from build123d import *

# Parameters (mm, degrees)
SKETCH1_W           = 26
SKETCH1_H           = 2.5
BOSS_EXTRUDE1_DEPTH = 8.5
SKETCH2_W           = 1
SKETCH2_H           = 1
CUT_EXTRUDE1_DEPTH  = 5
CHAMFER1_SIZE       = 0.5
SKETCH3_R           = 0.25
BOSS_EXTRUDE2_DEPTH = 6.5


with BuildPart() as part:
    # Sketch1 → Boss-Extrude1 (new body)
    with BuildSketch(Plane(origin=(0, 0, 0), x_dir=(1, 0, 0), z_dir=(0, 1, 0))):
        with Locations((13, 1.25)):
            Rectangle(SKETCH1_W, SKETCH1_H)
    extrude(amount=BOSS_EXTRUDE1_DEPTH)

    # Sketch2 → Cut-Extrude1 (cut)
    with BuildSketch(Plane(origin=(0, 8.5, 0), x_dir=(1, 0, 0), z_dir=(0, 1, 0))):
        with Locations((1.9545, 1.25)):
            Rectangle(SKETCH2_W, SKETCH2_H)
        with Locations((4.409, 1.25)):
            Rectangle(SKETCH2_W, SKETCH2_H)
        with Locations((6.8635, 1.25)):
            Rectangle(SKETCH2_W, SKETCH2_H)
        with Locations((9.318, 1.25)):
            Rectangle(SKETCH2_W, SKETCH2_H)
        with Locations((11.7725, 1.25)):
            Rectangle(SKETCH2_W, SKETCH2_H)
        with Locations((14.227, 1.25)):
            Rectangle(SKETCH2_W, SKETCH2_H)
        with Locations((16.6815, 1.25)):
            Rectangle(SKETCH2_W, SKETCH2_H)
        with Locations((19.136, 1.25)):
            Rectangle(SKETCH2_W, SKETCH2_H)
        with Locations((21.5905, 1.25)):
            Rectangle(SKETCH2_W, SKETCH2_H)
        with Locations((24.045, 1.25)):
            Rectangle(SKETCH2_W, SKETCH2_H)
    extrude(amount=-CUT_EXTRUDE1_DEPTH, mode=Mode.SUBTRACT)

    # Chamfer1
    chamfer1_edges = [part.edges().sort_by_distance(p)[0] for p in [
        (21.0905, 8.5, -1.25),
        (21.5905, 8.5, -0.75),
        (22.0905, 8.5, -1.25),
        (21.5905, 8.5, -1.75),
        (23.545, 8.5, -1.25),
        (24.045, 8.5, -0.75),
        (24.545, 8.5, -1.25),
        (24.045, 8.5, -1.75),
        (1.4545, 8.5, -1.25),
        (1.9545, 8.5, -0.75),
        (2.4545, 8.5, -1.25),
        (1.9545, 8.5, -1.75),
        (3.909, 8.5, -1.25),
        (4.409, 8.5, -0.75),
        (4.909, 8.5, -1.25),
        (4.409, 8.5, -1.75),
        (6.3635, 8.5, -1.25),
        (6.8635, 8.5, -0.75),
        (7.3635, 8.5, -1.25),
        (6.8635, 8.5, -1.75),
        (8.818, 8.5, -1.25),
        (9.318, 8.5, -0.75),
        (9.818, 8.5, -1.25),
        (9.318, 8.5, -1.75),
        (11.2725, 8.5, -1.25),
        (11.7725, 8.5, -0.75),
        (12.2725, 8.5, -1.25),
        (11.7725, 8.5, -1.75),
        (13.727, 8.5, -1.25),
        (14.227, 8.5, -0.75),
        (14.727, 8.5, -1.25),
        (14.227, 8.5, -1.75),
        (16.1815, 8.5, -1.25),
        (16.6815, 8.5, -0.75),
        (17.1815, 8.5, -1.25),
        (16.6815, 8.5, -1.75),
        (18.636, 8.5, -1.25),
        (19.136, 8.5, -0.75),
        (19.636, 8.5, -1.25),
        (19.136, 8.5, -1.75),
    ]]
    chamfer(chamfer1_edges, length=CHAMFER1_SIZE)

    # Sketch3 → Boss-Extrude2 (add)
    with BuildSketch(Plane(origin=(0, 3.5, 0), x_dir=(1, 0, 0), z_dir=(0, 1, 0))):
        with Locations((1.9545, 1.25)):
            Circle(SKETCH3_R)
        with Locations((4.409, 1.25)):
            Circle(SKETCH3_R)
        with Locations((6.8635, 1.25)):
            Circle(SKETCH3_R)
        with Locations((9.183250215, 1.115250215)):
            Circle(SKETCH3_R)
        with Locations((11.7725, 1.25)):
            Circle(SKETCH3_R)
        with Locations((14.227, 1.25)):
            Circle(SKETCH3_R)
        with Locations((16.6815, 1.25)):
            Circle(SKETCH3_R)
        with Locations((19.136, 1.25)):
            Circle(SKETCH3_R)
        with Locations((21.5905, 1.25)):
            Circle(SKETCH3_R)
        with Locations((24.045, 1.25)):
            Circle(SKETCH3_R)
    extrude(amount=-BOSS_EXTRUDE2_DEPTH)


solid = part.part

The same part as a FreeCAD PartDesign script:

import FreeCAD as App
import Part
import Sketcher
from FreeCAD import Vector
Q = App.Units.Quantity


def edges_at(feature, points):
    """Names of the edges that pass closest to the given points."""
    edges = feature.Shape.Edges
    near = lambda p: min(range(len(edges)), key=lambda i: edges[i].distToShape(Part.Vertex(*p))[0])
    return sorted({f"Edge{near(p) + 1}" for p in points})


def add_polygon(sketch, points):
    """Adds a closed chain of lines whose ends are joined by coincident constraints."""
    first, n = sketch.GeometryCount, len(points)
    for a, b in zip(points, points[1:] + points[:1]):
        sketch.addGeometry(Part.LineSegment(App.Vector(*a, 0), App.Vector(*b, 0)), False)
    for i in range(n):
        sketch.addConstraint(Sketcher.Constraint("Coincident", first + i, 2, first + (i + 1) % n, 1))

doc = App.newDocument("Part")
body = doc.addObject("PartDesign::Body", "Body")

# Sketch on XZ plane
sketch1 = body.newObject("Sketcher::SketchObject", "Sketch")
sketch1.AttachmentSupport = (doc.getObject("XZ_Plane"), [""])
sketch1.MapMode = "FlatFace"
add_polygon(sketch1, [(0, -2.5), (0, 0), (26, 0), (26, -2.5)])  # lines 0-3
sketch1.addConstraint(Sketcher.Constraint("Vertical", 0))
sketch1.addConstraint(Sketcher.Constraint("Horizontal", 1))
sketch1.addConstraint(Sketcher.Constraint("Vertical", 2))
sketch1.addConstraint(Sketcher.Constraint("Horizontal", 3))
sketch1.addConstraint(Sketcher.Constraint("Coincident", 0, 2, -1, 1))
sketch1.addConstraint(Sketcher.Constraint("DistanceX", 1, 1, 1, 2, Q("26 mm")))
sketch1.addConstraint(Sketcher.Constraint("DistanceY", 0, 1, 0, 2, Q("2.5 mm")))
pad1 = body.newObject("PartDesign::Pad", "Pad")
pad1.Profile = sketch1
pad1.Length = 8.5
pad1.Reversed = True

# Sketch on XZ plane
sketch2 = body.newObject("Sketcher::SketchObject", "Sketch001")
sketch2.AttachmentSupport = (doc.getObject("XZ_Plane"), [""])
sketch2.MapMode = "FlatFace"
sketch2.AttachmentOffset = App.Placement(Vector(0, 0, -8.5), App.Rotation())
add_polygon(sketch2, [(1.4545, -1.75), (1.4545, -0.75), (2.4545, -0.75), (2.4545, -1.75)])  # lines 0-3
add_polygon(sketch2, [(3.909, -1.75), (3.909, -0.75), (4.909, -0.75), (4.909, -1.75)])  # lines 4-7
add_polygon(sketch2, [(6.3635, -1.75), (6.3635, -0.75), (7.3635, -0.75), (7.3635, -1.75)])  # lines 8-11
add_polygon(sketch2, [(8.818, -1.75), (8.818, -0.75), (9.818, -0.75), (9.818, -1.75)])  # lines 12-15
add_polygon(sketch2, [(11.2725, -1.75), (11.2725, -0.75), (12.2725, -0.75), (12.2725, -1.75)])  # lines 16-19
add_polygon(sketch2, [(13.727, -1.75), (13.727, -0.75), (14.727, -0.75), (14.727, -1.75)])  # lines 20-23
add_polygon(sketch2, [(16.1815, -1.75), (16.1815, -0.75), (17.1815, -0.75), (17.1815, -1.75)])  # lines 24-27
add_polygon(sketch2, [(18.636, -1.75), (18.636, -0.75), (19.636, -0.75), (19.636, -1.75)])  # lines 28-31
add_polygon(sketch2, [(21.0905, -1.75), (21.0905, -0.75), (22.0905, -0.75), (22.0905, -1.75)])  # lines 32-35
add_polygon(sketch2, [(23.545, -1.75), (23.545, -0.75), (24.545, -0.75), (24.545, -1.75)])  # lines 36-39
sketch2.addConstraint(Sketcher.Constraint("Vertical", 0))
sketch2.addConstraint(Sketcher.Constraint("Horizontal", 1))
sketch2.addConstraint(Sketcher.Constraint("Vertical", 2))
sketch2.addConstraint(Sketcher.Constraint("Horizontal", 3))
sketch2.addConstraint(Sketcher.Constraint("Vertical", 4))
sketch2.addConstraint(Sketcher.Constraint("Horizontal", 5))
sketch2.addConstraint(Sketcher.Constraint("Vertical", 6))
sketch2.addConstraint(Sketcher.Constraint("Horizontal", 7))
sketch2.addConstraint(Sketcher.Constraint("Vertical", 8))
sketch2.addConstraint(Sketcher.Constraint("Horizontal", 9))
sketch2.addConstraint(Sketcher.Constraint("Vertical", 10))
sketch2.addConstraint(Sketcher.Constraint("Horizontal", 11))
sketch2.addConstraint(Sketcher.Constraint("Vertical", 12))
sketch2.addConstraint(Sketcher.Constraint("Horizontal", 13))
sketch2.addConstraint(Sketcher.Constraint("Vertical", 14))
sketch2.addConstraint(Sketcher.Constraint("Horizontal", 15))
sketch2.addConstraint(Sketcher.Constraint("Vertical", 16))
sketch2.addConstraint(Sketcher.Constraint("Horizontal", 17))
sketch2.addConstraint(Sketcher.Constraint("Vertical", 18))
sketch2.addConstraint(Sketcher.Constraint("Horizontal", 19))
sketch2.addConstraint(Sketcher.Constraint("Vertical", 20))
sketch2.addConstraint(Sketcher.Constraint("Horizontal", 21))
sketch2.addConstraint(Sketcher.Constraint("Vertical", 22))
sketch2.addConstraint(Sketcher.Constraint("Horizontal", 23))
sketch2.addConstraint(Sketcher.Constraint("Vertical", 24))
sketch2.addConstraint(Sketcher.Constraint("Horizontal", 25))
sketch2.addConstraint(Sketcher.Constraint("Vertical", 26))
sketch2.addConstraint(Sketcher.Constraint("Horizontal", 27))
sketch2.addConstraint(Sketcher.Constraint("Vertical", 28))
sketch2.addConstraint(Sketcher.Constraint("Horizontal", 29))
sketch2.addConstraint(Sketcher.Constraint("Vertical", 30))
sketch2.addConstraint(Sketcher.Constraint("Horizontal", 31))
sketch2.addConstraint(Sketcher.Constraint("Vertical", 32))
sketch2.addConstraint(Sketcher.Constraint("Horizontal", 33))
sketch2.addConstraint(Sketcher.Constraint("Vertical", 34))
sketch2.addConstraint(Sketcher.Constraint("Horizontal", 35))
sketch2.addConstraint(Sketcher.Constraint("Vertical", 36))
sketch2.addConstraint(Sketcher.Constraint("Horizontal", 37))
sketch2.addConstraint(Sketcher.Constraint("Vertical", 38))
sketch2.addConstraint(Sketcher.Constraint("Horizontal", 39))
sketch2.addConstraint(Sketcher.Constraint("Horizontal", 1, 2, 4, 2))
sketch2.addConstraint(Sketcher.Constraint("Horizontal", 3, 2, 6, 2))
sketch2.addConstraint(Sketcher.Constraint("Horizontal", 5, 2, 8, 2))
sketch2.addConstraint(Sketcher.Constraint("Horizontal", 7, 2, 10, 2))
sketch2.addConstraint(Sketcher.Constraint("Horizontal", 9, 2, 12, 2))
sketch2.addConstraint(Sketcher.Constraint("Horizontal", 11, 2, 14, 2))
sketch2.addConstraint(Sketcher.Constraint("Horizontal", 13, 2, 16, 2))
sketch2.addConstraint(Sketcher.Constraint("Horizontal", 15, 2, 18, 2))
sketch2.addConstraint(Sketcher.Constraint("Horizontal", 17, 2, 20, 2))
sketch2.addConstraint(Sketcher.Constraint("Horizontal", 19, 2, 22, 2))
sketch2.addConstraint(Sketcher.Constraint("Horizontal", 21, 2, 24, 2))
sketch2.addConstraint(Sketcher.Constraint("Horizontal", 23, 2, 26, 2))
sketch2.addConstraint(Sketcher.Constraint("Horizontal", 25, 2, 28, 2))
sketch2.addConstraint(Sketcher.Constraint("Horizontal", 27, 2, 30, 2))
sketch2.addConstraint(Sketcher.Constraint("Horizontal", 29, 2, 32, 2))
sketch2.addConstraint(Sketcher.Constraint("Horizontal", 31, 2, 34, 2))
sketch2.addConstraint(Sketcher.Constraint("Horizontal", 33, 2, 36, 2))
sketch2.addConstraint(Sketcher.Constraint("Horizontal", 35, 2, 38, 2))
sketch2.addConstraint(Sketcher.Constraint("Equal", 3, 5))
sketch2.addConstraint(Sketcher.Constraint("Equal", 7, 9))
sketch2.addConstraint(Sketcher.Constraint("Equal", 11, 13))
sketch2.addConstraint(Sketcher.Constraint("Equal", 15, 17))
sketch2.addConstraint(Sketcher.Constraint("Equal", 19, 21))
sketch2.addConstraint(Sketcher.Constraint("Equal", 23, 25))
sketch2.addConstraint(Sketcher.Constraint("Equal", 27, 29))
sketch2.addConstraint(Sketcher.Constraint("Equal", 31, 33))
sketch2.addConstraint(Sketcher.Constraint("Equal", 35, 37))
sketch2.addConstraint(Sketcher.Constraint("Equal", 39, 0))
sketch2.addConstraint(Sketcher.Constraint("DistanceX", 1, 1, 1, 2, Q("1 mm")))
sketch2.addConstraint(Sketcher.Constraint("DistanceY", 0, 2, -1, 1, Q("0.75 mm")))
sketch2.addConstraint(Sketcher.Constraint("DistanceX", -1, 1, 4, 2, Q("3.909 mm")))
sketch2.addConstraint(Sketcher.Constraint("DistanceX", -1, 1, 12, 2, Q("8.818 mm")))
sketch2.addConstraint(Sketcher.Constraint("DistanceX", -1, 1, 20, 2, Q("13.727 mm")))
sketch2.addConstraint(Sketcher.Constraint("DistanceX", -1, 1, 28, 2, Q("18.636 mm")))
sketch2.addConstraint(Sketcher.Constraint("DistanceX", -1, 1, 36, 2, Q("23.545 mm")))
sketch2.addConstraint(Sketcher.Constraint("DistanceX", 1, 2, 8, 2, Q("3.909 mm")))
sketch2.addConstraint(Sketcher.Constraint("DistanceX", 9, 2, 16, 2, Q("3.909 mm")))
sketch2.addConstraint(Sketcher.Constraint("DistanceX", 17, 2, 24, 2, Q("3.909 mm")))
sketch2.addConstraint(Sketcher.Constraint("DistanceX", 25, 2, 32, 2, Q("3.909 mm")))
sketch2.addConstraint(Sketcher.Constraint("DistanceX", -1, 1, 0, 2, Q("1.4545 mm")))
pocket1 = body.newObject("PartDesign::Pocket", "Pocket")
pocket1.Profile = sketch2
pocket1.Length = 5
pocket1.Reversed = True
doc.recompute()

chamfer = body.newObject("PartDesign::Chamfer", "Chamfer")
chamfer.Base = (pocket1, edges_at(pocket1, [
    (21.09, 8.5, -1.25),
    (21.59, 8.5, -0.75),
    (22.09, 8.5, -1.25),
    (21.59, 8.5, -1.75),
    (23.545, 8.5, -1.25),
    (24.045, 8.5, -0.75),
    (24.545, 8.5, -1.25),
    (24.045, 8.5, -1.75),
    (1.454, 8.5, -1.25),
    (1.954, 8.5, -0.75),
    (2.454, 8.5, -1.25),
    (1.954, 8.5, -1.75),
    (3.909, 8.5, -1.25),
    (4.409, 8.5, -0.75),
    (4.909, 8.5, -1.25),
    (4.409, 8.5, -1.75),
    (6.364, 8.5, -1.25),
    (6.864, 8.5, -0.75),
    (7.364, 8.5, -1.25),
    (6.864, 8.5, -1.75),
    (8.818, 8.5, -1.25),
    (9.318, 8.5, -0.75),
    (9.818, 8.5, -1.25),
    (9.318, 8.5, -1.75),
    (11.273, 8.5, -1.25),
    (11.773, 8.5, -0.75),
    (12.273, 8.5, -1.25),
    (11.773, 8.5, -1.75),
    (13.727, 8.5, -1.25),
    (14.227, 8.5, -0.75),
    (14.727, 8.5, -1.25),
    (14.227, 8.5, -1.75),
    (16.181, 8.5, -1.25),
    (16.681, 8.5, -0.75),
    (17.181, 8.5, -1.25),
    (16.681, 8.5, -1.75),
    (18.636, 8.5, -1.25),
    (19.136, 8.5, -0.75),
    (19.636, 8.5, -1.25),
    (19.136, 8.5, -1.75),
]))
chamfer.Size = 0.5

# Sketch on XZ plane
sketch3 = body.newObject("Sketcher::SketchObject", "Sketch002")
sketch3.AttachmentSupport = (doc.getObject("XZ_Plane"), [""])
sketch3.MapMode = "FlatFace"
sketch3.AttachmentOffset = App.Placement(Vector(0, 0, -3.5), App.Rotation())
sketch3.addGeometry(Part.Circle(Vector(1.9545, -1.25, 0), Vector(0, 0, 1), 0.25), False)
sketch3.addGeometry(Part.Circle(Vector(4.409, -1.25, 0), Vector(0, 0, 1), 0.25), False)
sketch3.addGeometry(Part.Circle(Vector(6.8635, -1.25, 0), Vector(0, 0, 1), 0.25), False)
sketch3.addGeometry(Part.Circle(Vector(9.18325, -1.11525, 0), Vector(0, 0, 1), 0.25), False)
sketch3.addGeometry(Part.Circle(Vector(11.7725, -1.25, 0), Vector(0, 0, 1), 0.25), False)
sketch3.addGeometry(Part.Circle(Vector(14.227, -1.25, 0), Vector(0, 0, 1), 0.25), False)
sketch3.addGeometry(Part.Circle(Vector(16.6815, -1.25, 0), Vector(0, 0, 1), 0.25), False)
sketch3.addGeometry(Part.Circle(Vector(19.136, -1.25, 0), Vector(0, 0, 1), 0.25), False)
sketch3.addGeometry(Part.Circle(Vector(21.5905, -1.25, 0), Vector(0, 0, 1), 0.25), False)
sketch3.addGeometry(Part.Circle(Vector(24.045, -1.25, 0), Vector(0, 0, 1), 0.25), False)
sketch3.addConstraint(Sketcher.Constraint("Equal", 0, 1))
sketch3.addConstraint(Sketcher.Constraint("Equal", 1, 2))
sketch3.addConstraint(Sketcher.Constraint("Equal", 2, 3))
sketch3.addConstraint(Sketcher.Constraint("Equal", 3, 4))
sketch3.addConstraint(Sketcher.Constraint("Equal", 4, 5))
sketch3.addConstraint(Sketcher.Constraint("Equal", 5, 6))
sketch3.addConstraint(Sketcher.Constraint("Equal", 6, 7))
sketch3.addConstraint(Sketcher.Constraint("Equal", 7, 8))
sketch3.addConstraint(Sketcher.Constraint("Equal", 8, 9))
sketch3.addConstraint(Sketcher.Constraint("Horizontal", 0, 3, 1, 3))
sketch3.addConstraint(Sketcher.Constraint("Horizontal", 1, 3, 2, 3))
sketch3.addConstraint(Sketcher.Constraint("Horizontal", 2, 3, 4, 3))
sketch3.addConstraint(Sketcher.Constraint("Horizontal", 4, 3, 5, 3))
sketch3.addConstraint(Sketcher.Constraint("Horizontal", 5, 3, 6, 3))
sketch3.addConstraint(Sketcher.Constraint("Horizontal", 6, 3, 7, 3))
sketch3.addConstraint(Sketcher.Constraint("Horizontal", 7, 3, 8, 3))
sketch3.addConstraint(Sketcher.Constraint("Horizontal", 8, 3, 9, 3))
sketch3.addConstraint(Sketcher.Constraint("Diameter", 0, Q("0.5 mm")))
sketch3.addConstraint(Sketcher.Constraint("DistanceY", 0, 3, -1, 1, Q("1.25 mm")))
sketch3.addConstraint(Sketcher.Constraint("DistanceX", -1, 1, 1, 3, Q("4.409 mm")))
sketch3.addConstraint(Sketcher.Constraint("DistanceX", -1, 1, 5, 3, Q("14.227 mm")))
sketch3.addConstraint(Sketcher.Constraint("DistanceX", -1, 1, 7, 3, Q("19.136 mm")))
sketch3.addConstraint(Sketcher.Constraint("DistanceX", -1, 1, 9, 3, Q("24.045 mm")))
sketch3.addConstraint(Sketcher.Constraint("DistanceX", 0, 3, 2, 3, Q("4.909 mm")))
sketch3.addConstraint(Sketcher.Constraint("DistanceX", 2, 3, 4, 3, Q("4.909 mm")))
sketch3.addConstraint(Sketcher.Constraint("DistanceX", 4, 3, 6, 3, Q("4.909 mm")))
sketch3.addConstraint(Sketcher.Constraint("DistanceX", 6, 3, 8, 3, Q("4.909 mm")))
sketch3.addConstraint(Sketcher.Constraint("DistanceX", -1, 1, 0, 3, Q("1.9545 mm")))
sketch3.addConstraint(Sketcher.Constraint("DistanceX", -1, 1, 3, 3, Q("9.18325 mm")))
sketch3.addConstraint(Sketcher.Constraint("DistanceY", 3, 3, -1, 1, Q("1.11525 mm")))
pad2 = body.newObject("PartDesign::Pad", "Pad001")
pad2.Profile = sketch3
pad2.Length = 6.5

doc.recompute()
